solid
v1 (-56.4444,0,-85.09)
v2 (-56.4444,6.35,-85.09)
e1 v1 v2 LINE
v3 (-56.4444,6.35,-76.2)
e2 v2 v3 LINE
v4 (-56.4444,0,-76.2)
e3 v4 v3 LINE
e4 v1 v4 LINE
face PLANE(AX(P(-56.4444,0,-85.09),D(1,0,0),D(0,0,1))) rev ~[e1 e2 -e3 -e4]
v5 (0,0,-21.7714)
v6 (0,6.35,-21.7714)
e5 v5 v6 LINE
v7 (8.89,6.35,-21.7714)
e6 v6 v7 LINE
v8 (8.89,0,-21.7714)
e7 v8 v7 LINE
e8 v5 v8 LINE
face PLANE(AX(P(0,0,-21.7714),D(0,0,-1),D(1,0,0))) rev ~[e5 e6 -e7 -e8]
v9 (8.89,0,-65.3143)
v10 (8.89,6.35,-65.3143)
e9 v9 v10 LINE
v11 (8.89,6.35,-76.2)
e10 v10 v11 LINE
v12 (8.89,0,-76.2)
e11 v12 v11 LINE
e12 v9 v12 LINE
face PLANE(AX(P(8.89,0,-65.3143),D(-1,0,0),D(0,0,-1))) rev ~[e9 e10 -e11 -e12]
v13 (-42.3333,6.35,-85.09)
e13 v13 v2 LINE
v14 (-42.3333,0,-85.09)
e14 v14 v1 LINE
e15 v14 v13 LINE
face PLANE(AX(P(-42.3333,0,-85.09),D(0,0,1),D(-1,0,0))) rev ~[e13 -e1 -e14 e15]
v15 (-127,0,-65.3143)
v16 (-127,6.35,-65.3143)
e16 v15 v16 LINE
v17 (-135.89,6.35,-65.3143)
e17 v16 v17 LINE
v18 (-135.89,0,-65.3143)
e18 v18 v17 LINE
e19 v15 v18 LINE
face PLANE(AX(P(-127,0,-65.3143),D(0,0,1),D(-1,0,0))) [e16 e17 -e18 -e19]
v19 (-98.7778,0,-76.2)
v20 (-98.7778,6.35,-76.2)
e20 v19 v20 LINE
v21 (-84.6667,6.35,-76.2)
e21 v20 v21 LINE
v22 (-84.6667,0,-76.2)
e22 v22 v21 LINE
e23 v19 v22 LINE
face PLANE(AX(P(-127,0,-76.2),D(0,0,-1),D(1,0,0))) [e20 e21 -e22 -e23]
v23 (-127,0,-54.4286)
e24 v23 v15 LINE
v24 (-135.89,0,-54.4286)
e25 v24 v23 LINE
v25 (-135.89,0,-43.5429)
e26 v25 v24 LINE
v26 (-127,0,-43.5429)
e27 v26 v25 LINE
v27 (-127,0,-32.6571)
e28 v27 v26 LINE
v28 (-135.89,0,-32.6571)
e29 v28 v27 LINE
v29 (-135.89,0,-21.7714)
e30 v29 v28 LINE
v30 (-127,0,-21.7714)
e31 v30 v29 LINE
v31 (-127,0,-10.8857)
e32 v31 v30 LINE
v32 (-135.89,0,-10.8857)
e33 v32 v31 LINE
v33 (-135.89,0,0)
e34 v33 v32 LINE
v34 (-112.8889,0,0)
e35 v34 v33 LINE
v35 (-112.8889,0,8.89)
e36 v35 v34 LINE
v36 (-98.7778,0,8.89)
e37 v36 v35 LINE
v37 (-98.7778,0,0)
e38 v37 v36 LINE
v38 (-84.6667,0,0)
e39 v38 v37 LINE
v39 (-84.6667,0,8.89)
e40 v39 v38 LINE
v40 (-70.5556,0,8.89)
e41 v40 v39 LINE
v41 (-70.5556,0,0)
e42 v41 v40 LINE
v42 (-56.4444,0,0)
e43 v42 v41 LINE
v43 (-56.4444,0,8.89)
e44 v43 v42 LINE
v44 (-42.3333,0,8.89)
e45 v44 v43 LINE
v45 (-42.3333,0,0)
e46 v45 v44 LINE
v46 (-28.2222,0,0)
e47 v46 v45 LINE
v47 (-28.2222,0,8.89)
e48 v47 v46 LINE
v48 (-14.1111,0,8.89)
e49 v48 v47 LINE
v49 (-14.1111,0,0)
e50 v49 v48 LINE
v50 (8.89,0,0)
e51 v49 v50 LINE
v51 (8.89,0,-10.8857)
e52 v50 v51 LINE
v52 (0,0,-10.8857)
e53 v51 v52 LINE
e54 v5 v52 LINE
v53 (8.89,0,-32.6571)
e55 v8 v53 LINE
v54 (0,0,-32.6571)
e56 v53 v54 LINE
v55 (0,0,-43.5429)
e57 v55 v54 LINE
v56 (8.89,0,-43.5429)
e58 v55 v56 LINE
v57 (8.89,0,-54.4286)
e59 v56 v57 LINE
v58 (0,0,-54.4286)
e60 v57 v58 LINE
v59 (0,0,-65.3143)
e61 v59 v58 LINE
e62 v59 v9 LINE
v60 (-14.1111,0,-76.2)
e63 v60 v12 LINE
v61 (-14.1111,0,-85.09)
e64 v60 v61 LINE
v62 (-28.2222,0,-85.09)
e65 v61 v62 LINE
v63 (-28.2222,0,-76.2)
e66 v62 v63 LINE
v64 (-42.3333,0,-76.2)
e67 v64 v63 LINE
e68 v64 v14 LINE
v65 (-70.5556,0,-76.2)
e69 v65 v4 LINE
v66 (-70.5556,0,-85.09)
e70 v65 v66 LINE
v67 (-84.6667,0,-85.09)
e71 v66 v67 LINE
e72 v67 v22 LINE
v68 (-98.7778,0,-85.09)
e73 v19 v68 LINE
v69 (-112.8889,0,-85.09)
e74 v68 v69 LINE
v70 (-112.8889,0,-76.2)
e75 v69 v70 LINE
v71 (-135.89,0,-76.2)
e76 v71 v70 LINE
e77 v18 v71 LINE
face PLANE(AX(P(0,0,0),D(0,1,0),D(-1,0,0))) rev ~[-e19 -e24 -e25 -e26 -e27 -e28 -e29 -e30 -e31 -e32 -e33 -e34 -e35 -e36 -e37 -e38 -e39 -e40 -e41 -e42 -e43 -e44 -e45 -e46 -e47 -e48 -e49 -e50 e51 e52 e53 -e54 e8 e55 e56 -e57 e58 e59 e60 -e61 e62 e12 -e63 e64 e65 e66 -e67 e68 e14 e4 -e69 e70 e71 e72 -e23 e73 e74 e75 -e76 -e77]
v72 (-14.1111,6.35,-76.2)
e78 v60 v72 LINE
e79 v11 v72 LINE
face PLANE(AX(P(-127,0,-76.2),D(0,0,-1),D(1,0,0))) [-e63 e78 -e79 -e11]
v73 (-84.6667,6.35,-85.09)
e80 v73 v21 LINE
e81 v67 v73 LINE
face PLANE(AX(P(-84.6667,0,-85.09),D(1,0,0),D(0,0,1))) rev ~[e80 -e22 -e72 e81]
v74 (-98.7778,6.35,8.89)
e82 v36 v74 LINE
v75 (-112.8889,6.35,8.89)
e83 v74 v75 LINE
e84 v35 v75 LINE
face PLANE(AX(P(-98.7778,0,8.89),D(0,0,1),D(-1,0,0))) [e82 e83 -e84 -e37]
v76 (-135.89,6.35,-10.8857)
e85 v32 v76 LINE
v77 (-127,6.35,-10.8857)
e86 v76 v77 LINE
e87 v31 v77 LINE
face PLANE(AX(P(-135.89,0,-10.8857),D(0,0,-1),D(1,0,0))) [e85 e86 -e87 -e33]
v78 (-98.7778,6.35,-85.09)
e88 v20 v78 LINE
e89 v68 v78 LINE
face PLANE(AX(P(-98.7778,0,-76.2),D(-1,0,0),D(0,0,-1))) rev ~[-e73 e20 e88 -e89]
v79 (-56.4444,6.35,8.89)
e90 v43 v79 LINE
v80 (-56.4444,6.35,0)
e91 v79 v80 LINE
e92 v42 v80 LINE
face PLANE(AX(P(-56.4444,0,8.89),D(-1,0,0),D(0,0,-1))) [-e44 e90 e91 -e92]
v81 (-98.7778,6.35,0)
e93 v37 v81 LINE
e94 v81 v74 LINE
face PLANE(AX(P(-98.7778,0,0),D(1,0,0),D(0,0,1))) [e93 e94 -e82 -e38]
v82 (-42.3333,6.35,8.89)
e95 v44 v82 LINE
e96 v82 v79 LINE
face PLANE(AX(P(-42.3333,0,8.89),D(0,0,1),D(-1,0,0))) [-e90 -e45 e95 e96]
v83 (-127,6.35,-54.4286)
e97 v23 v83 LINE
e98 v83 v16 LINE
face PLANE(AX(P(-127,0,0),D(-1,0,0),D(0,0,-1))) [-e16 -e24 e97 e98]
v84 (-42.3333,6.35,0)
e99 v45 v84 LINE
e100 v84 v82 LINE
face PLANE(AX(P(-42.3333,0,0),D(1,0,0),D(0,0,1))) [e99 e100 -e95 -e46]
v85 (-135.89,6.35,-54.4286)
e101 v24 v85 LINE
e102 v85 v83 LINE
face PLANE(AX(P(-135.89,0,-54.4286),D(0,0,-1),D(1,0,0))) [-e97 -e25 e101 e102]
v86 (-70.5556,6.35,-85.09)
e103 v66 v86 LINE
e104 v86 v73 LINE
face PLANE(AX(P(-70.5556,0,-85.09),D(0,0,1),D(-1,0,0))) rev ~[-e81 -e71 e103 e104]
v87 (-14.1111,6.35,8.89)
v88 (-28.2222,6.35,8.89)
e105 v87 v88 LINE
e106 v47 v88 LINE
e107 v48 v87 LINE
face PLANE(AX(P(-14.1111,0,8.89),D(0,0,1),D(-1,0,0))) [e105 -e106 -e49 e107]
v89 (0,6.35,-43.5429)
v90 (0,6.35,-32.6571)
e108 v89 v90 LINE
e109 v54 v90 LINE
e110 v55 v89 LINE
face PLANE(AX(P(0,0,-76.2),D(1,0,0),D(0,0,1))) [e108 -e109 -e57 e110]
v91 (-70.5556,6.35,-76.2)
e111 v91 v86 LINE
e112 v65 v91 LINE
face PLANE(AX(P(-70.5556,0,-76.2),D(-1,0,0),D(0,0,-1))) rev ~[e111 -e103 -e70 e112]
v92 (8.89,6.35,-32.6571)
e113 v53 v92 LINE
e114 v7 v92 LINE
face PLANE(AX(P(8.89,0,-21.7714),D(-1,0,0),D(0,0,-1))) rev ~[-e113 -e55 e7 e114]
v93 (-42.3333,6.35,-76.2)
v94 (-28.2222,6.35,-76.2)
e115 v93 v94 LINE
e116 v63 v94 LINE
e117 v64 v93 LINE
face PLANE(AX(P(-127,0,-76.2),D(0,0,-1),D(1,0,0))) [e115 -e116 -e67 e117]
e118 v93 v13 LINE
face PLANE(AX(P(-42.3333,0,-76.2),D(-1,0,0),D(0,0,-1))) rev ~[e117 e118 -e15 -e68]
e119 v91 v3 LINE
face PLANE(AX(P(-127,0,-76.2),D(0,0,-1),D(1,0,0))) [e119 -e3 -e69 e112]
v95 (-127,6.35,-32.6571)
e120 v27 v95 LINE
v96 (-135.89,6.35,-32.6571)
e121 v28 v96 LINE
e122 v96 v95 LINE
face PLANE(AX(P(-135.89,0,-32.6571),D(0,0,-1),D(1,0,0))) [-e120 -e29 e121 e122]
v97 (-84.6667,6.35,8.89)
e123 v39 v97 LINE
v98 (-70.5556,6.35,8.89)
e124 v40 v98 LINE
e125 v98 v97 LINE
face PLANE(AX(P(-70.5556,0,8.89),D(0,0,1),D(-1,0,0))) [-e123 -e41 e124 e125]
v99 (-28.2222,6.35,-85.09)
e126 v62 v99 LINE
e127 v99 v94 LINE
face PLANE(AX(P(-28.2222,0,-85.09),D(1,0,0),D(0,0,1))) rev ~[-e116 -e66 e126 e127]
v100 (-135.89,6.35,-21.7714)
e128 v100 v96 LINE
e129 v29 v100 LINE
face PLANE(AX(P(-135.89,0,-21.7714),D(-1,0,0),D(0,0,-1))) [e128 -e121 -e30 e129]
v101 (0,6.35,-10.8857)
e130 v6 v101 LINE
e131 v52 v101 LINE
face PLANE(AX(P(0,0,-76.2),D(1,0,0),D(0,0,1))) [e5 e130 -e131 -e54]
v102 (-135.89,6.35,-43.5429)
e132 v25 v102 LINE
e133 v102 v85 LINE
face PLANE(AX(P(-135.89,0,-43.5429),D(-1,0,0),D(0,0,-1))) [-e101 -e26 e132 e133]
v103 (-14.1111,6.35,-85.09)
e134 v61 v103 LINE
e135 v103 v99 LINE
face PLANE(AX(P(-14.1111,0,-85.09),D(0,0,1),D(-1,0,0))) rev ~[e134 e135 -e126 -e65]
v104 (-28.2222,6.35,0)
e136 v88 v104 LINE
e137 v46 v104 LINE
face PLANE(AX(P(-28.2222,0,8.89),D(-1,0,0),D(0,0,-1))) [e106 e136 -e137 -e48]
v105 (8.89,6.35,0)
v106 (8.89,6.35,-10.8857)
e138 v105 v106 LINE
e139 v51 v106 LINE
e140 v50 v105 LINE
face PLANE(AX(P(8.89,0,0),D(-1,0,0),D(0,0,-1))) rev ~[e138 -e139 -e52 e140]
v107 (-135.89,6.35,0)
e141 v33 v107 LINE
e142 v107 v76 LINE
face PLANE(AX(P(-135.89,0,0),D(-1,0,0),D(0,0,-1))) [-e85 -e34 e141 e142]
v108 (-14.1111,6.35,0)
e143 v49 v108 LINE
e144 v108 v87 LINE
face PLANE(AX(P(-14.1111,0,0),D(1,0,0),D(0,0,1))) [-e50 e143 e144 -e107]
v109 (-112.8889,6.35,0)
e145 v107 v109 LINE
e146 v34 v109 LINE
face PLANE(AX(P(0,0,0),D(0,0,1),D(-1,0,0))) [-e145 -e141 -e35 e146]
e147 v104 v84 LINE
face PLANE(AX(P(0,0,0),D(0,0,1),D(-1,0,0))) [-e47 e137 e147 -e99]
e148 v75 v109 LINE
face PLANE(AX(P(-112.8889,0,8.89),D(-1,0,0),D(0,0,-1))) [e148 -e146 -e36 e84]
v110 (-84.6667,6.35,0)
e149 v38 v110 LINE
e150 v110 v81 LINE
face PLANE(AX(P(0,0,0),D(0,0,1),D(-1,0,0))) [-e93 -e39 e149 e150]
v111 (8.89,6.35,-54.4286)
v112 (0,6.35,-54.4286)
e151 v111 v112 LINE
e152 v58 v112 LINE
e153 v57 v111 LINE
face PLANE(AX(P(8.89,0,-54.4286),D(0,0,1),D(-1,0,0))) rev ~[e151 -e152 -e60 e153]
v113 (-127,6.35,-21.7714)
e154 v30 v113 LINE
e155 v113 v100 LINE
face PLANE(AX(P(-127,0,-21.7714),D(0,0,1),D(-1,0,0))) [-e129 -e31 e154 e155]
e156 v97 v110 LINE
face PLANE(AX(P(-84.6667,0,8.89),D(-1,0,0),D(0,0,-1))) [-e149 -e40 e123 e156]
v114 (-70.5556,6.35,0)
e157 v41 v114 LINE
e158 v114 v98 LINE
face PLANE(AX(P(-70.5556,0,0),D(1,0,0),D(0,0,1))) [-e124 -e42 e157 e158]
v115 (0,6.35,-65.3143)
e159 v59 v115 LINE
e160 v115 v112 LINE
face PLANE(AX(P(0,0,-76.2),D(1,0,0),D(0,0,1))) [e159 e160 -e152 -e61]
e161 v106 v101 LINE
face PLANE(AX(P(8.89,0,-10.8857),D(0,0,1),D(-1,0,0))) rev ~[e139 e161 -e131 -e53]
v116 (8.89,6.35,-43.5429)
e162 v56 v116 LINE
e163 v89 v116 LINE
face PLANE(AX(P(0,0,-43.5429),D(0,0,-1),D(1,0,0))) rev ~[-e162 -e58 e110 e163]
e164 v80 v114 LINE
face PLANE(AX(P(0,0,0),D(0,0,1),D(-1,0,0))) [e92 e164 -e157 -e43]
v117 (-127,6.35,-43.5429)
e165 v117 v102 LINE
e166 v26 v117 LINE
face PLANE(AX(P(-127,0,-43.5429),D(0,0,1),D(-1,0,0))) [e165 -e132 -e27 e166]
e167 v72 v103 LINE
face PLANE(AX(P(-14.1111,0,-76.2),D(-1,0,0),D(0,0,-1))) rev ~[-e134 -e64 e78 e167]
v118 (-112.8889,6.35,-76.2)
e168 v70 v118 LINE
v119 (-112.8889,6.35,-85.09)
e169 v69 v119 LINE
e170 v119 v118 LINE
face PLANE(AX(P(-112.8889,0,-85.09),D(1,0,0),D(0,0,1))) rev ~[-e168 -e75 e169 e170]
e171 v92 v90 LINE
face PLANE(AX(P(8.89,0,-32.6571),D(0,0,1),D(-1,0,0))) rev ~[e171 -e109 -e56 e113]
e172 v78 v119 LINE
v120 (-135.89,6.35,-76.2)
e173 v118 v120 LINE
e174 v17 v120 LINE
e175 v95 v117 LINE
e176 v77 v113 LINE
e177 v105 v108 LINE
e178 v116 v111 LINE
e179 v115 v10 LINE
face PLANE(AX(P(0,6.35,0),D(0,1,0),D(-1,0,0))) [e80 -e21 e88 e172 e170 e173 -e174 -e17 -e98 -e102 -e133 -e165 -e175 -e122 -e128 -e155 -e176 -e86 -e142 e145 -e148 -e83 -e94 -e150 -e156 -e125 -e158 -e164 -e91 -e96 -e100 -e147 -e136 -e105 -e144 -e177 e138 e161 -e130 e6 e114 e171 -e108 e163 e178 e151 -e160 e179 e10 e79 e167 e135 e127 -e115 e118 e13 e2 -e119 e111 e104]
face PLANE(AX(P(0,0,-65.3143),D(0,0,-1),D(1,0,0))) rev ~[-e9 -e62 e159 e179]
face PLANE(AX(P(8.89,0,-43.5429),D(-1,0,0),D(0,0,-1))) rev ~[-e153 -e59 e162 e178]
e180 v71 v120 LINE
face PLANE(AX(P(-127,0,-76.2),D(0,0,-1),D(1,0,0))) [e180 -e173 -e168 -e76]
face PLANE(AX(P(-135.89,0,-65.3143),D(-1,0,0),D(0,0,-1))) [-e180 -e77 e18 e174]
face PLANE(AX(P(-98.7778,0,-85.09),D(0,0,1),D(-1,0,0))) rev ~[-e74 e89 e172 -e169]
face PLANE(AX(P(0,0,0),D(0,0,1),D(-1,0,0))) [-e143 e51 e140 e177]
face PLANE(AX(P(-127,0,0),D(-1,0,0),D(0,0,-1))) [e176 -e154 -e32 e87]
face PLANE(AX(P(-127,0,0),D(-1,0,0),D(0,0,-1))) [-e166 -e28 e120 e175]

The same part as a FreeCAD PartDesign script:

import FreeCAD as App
import Part
import Sketcher
Q = App.Units.Quantity

doc = App.newDocument("Part")
body = doc.addObject("PartDesign::Body", "Body")
body.AllowCompound = True

# Sketch on XZ plane
sketch1 = body.newObject("Sketcher::SketchObject", "Sketch")
sketch1.AttachmentSupport = (doc.getObject("XZ_Plane"), [""])
sketch1.MapMode = "FlatFace"
sketch1.addGeometry(Part.LineSegment(App.Vector(0, -10.8857, 0), App.Vector(0, 0, 0)), False)
sketch1.addGeometry(Part.LineSegment(App.Vector(0, 0, 0), App.Vector(8.89, 0, 0)), False)
sketch1.addGeometry(Part.LineSegment(App.Vector(8.89, 0, 0), App.Vector(8.89, -10.8857, 0)), False)
sketch1.addGeometry(Part.LineSegment(App.Vector(8.89, -10.8857, 0), App.Vector(0, -10.8857, 0)), False)
sketch1.addGeometry(Part.LineSegment(App.Vector(-14.1111, 8.89, 0), App.Vector(-14.1111, 0, 0)), False)
sketch1.addGeometry(Part.LineSegment(App.Vector(-14.1111, 0, 0), App.Vector(-28.2222, 0, 0)), False)
sketch1.addGeometry(Part.LineSegment(App.Vector(-28.2222, 0, 0), App.Vector(-28.2222, 8.89, 0)), False)
sketch1.addGeometry(Part.LineSegment(App.Vector(-28.2222, 8.89, 0), App.Vector(-14.1111, 8.89, 0)), False)
sketch1.addGeometry(Part.LineSegment(App.Vector(0, -32.6571, 0), App.Vector(0, -21.7714, 0)), False)
sketch1.addGeometry(Part.LineSegment(App.Vector(0, -21.7714, 0), App.Vector(8.89, -21.7714, 0)), False)
sketch1.addGeometry(Part.LineSegment(App.Vector(8.89, -21.7714, 0), App.Vector(8.89, -32.6571, 0)), False)
sketch1.addGeometry(Part.LineSegment(App.Vector(8.89, -32.6571, 0), App.Vector(0, -32.6571, 0)), False)
sketch1.addGeometry(Part.LineSegment(App.Vector(-42.3333, 8.89, 0), App.Vector(-42.3333, 0, 0)), False)
sketch1.addGeometry(Part.LineSegment(App.Vector(-42.3333, 0, 0), App.Vector(-56.4444, 0, 0)), False)
sketch1.addGeometry(Part.LineSegment(App.Vector(-56.4444, 0, 0), App.Vector(-56.4444, 8.89, 0)), False)
sketch1.addGeometry(Part.LineSegment(App.Vector(-56.4444, 8.89, 0), App.Vector(-42.3333, 8.89, 0)), False)
sketch1.addGeometry(Part.LineSegment(App.Vector(0, -54.4286, 0), App.Vector(0, -43.5429, 0)), False)
sketch1.addGeometry(Part.LineSegment(App.Vector(0, -43.5429, 0), App.Vector(8.89, -43.5429, 0)), False)
sketch1.addGeometry(Part.LineSegment(App.Vector(8.89, -43.5429, 0), App.Vector(8.89, -54.4286, 0)), False)
sketch1.addGeometry(Part.LineSegment(App.Vector(8.89, -54.4286, 0), App.Vector(0, -54.4286, 0)), False)
sketch1.addGeometry(Part.LineSegment(App.Vector(-70.5556, 8.89, 0), App.Vector(-70.5556, 0, 0)), False)
sketch1.addGeometry(Part.LineSegment(App.Vector(-70.5556, 0, 0), App.Vector(-84.6667, 0, 0)), False)
sketch1.addGeometry(Part.LineSegment(App.Vector(-84.6667, 0, 0), App.Vector(-84.6667, 8.89, 0)), False)
sketch1.addGeometry(Part.LineSegment(App.Vector(-84.6667, 8.89, 0), App.Vector(-70.5556, 8.89, 0)), False)
sketch1.addGeometry(Part.LineSegment(App.Vector(0, -76.2, 0), App.Vector(0, -65.3143, 0)), False)
sketch1.addGeometry(Part.LineSegment(App.Vector(0, -65.3143, 0), App.Vector(8.89, -65.3143, 0)), False)
sketch1.addGeometry(Part.LineSegment(App.Vector(8.89, -65.3143, 0), App.Vector(8.89, -76.2, 0)), False)
sketch1.addGeometry(Part.LineSegment(App.Vector(8.89, -76.2, 0), App.Vector(0, -76.2, 0)), False)
sketch1.addGeometry(Part.LineSegment(App.Vector(-98.7778, 8.89, 0), App.Vector(-98.7778, 0, 0)), False)
sketch1.addGeometry(Part.LineSegment(App.Vector(-98.7778, 0, 0), App.Vector(-112.8889, 0, 0)), False)
sketch1.addGeometry(Part.LineSegment(App.Vector(-112.8889, 0, 0), App.Vector(-112.8889, 8.89, 0)), False)
sketch1.addGeometry(Part.LineSegment(App.Vector(-112.8889, 8.89, 0), App.Vector(-98.7778, 8.89, 0)), False)
sketch1.addGeometry(Part.LineSegment(App.Vector(-28.2222, -76.2, 0), App.Vector(-14.1111, -76.2, 0)), False)
sketch1.addGeometry(Part.LineSegment(App.Vector(-14.1111, -76.2, 0), App.Vector(-14.1111, -85.09, 0)), False)
sketch1.addGeometry(Part.LineSegment(App.Vector(-14.1111, -85.09, 0), App.Vector(-28.2222, -85.09, 0)), False)
sketch1.addGeometry(Part.LineSegment(App.Vector(-28.2222, -85.09, 0), App.Vector(-28.2222, -76.2, 0)), False)
sketch1.addGeometry(Part.LineSegment(App.Vector(-135.89, 0, 0), App.Vector(-127, 0, 0)), False)
sketch1.addGeometry(Part.LineSegment(App.Vector(-127, 0, 0), App.Vector(-127, -10.8857, 0)), False)
sketch1.addGeometry(Part.LineSegment(App.Vector(-127, -10.8857, 0), App.Vector(-135.89, -10.8857, 0)), False)
sketch1.addGeometry(Part.LineSegment(App.Vector(-135.89, -10.8857, 0), App.Vector(-135.89, 0, 0)), False)
sketch1.addGeometry(Part.LineSegment(App.Vector(-56.4444, -76.2, 0), App.Vector(-42.3333, -76.2, 0)), False)
sketch1.addGeometry(Part.LineSegment(App.Vector(-42.3333, -76.2, 0), App.Vector(-42.3333, -85.09, 0)), False)
sketch1.addGeometry(Part.LineSegment(App.Vector(-42.3333, -85.09, 0), App.Vector(-56.4444, -85.09, 0)), False)
sketch1.addGeometry(Part.LineSegment(App.Vector(-56.4444, -85.09, 0), App.Vector(-56.4444, -76.2, 0)), False)
sketch1.addGeometry(Part.LineSegment(App.Vector(-135.89, -21.7714, 0), App.Vector(-127, -21.7714, 0)), False)
sketch1.addGeometry(Part.LineSegment(App.Vector(-127, -21.7714, 0), App.Vector(-127, -32.6571, 0)), False)
sketch1.addGeometry(Part.LineSegment(App.Vector(-127, -32.6571, 0), App.Vector(-135.89, -32.6571, 0)), False)
sketch1.addGeometry(Part.LineSegment(App.Vector(-135.89, -32.6571, 0), App.Vector(-135.89, -21.7714, 0)), False)
sketch1.addGeometry(Part.LineSegment(App.Vector(-84.6667, -76.2, 0), App.Vector(-70.5556, -76.2, 0)), False)
sketch1.addGeometry(Part.LineSegment(App.Vector(-70.5556, -76.2, 0), App.Vector(-70.5556, -85.09, 0)), False)
sketch1.addGeometry(Part.LineSegment(App.Vector(-70.5556, -85.09, 0), App.Vector(-84.6667, -85.09, 0)), False)
sketch1.addGeometry(Part.LineSegment(App.Vector(-84.6667, -85.09, 0), App.Vector(-84.6667, -76.2, 0)), False)
sketch1.addGeometry(Part.LineSegment(App.Vector(-135.89, -43.5429, 0), App.Vector(-127, -43.5429, 0)), False)
sketch1.addGeometry(Part.LineSegment(App.Vector(-127, -43.5429, 0), App.Vector(-127, -54.4286, 0)), False)
sketch1.addGeometry(Part.LineSegment(App.Vector(-127, -54.4286, 0), App.Vector(-135.89, -54.4286, 0)), False)
sketch1.addGeometry(Part.LineSegment(App.Vector(-135.89, -54.4286, 0), App.Vector(-135.89, -43.5429, 0)), False)
sketch1.addGeometry(Part.LineSegment(App.Vector(-112.8889, -76.2, 0), App.Vector(-98.7778, -76.2, 0)), False)
sketch1.addGeometry(Part.LineSegment(App.Vector(-98.7778, -76.2, 0), App.Vector(-98.7778, -85.09, 0)), False)
sketch1.addGeometry(Part.LineSegment(App.Vector(-98.7778, -85.09, 0), App.Vector(-112.8889, -85.09, 0)), False)
sketch1.addGeometry(Part.LineSegment(App.Vector(-112.8889, -85.09, 0), App.Vector(-112.8889, -76.2, 0)), False)
sketch1.addGeometry(Part.LineSegment(App.Vector(-135.89, -65.3143, 0), App.Vector(-127, -65.3143, 0)), False)
sketch1.addGeometry(Part.LineSegment(App.Vector(-127, -65.3143, 0), App.Vector(-127, -76.2, 0)), False)
sketch1.addGeometry(Part.LineSegment(App.Vector(-127, -76.2, 0), App.Vector(-135.89, -76.2, 0)), False)
sketch1.addGeometry(Part.LineSegment(App.Vector(-135.89, -76.2, 0), App.Vector(-135.89, -65.3143, 0)), False)
sketch1.addConstraint(Sketcher.Constraint("Coincident", 0, 2, 1, 1))
sketch1.addConstraint(Sketcher.Constraint("Coincident", 1, 2, 2, 1))
sketch1.addConstraint(Sketcher.Constraint("Coincident", 2, 2, 3, 1))
sketch1.addConstraint(Sketcher.Constraint("Coincident", 3, 2, 0, 1))
sketch1.addConstraint(Sketcher.Constraint("Coincident", 4, 2, 5, 1))
sketch1.addConstraint(Sketcher.Constraint("Coincident", 5, 2, 6, 1))
sketch1.addConstraint(Sketcher.Constraint("Coincident", 6, 2, 7, 1))
sketch1.addConstraint(Sketcher.Constraint("Coincident", 7, 2, 4, 1))
sketch1.addConstraint(Sketcher.Constraint("Coincident", 8, 2, 9, 1))
sketch1.addConstraint(Sketcher.Constraint("Coincident", 9, 2, 10, 1))
sketch1.addConstraint(Sketcher.Constraint("Coincident", 10, 2, 11, 1))
sketch1.addConstraint(Sketcher.Constraint("Coincident", 11, 2, 8, 1))
sketch1.addConstraint(Sketcher.Constraint("Coincident", 12, 2, 13, 1))
sketch1.addConstraint(Sketcher.Constraint("Coincident", 13, 2, 14, 1))
sketch1.addConstraint(Sketcher.Constraint("Coincident", 14, 2, 15, 1))
sketch1.addConstraint(Sketcher.Constraint("Coincident", 15, 2, 12, 1))
sketch1.addConstraint(Sketcher.Constraint("Coincident", 16, 2, 17, 1))
sketch1.addConstraint(Sketcher.Constraint("Coincident", 17, 2, 18, 1))
sketch1.addConstraint(Sketcher.Constraint("Coincident", 18, 2, 19, 1))
sketch1.addConstraint(Sketcher.Constraint("Coincident", 19, 2, 16, 1))
sketch1.addConstraint(Sketcher.Constraint("Coincident", 20, 2, 21, 1))
sketch1.addConstraint(Sketcher.Constraint("Coincident", 21, 2, 22, 1))
sketch1.addConstraint(Sketcher.Constraint("Coincident", 22, 2, 23, 1))
sketch1.addConstraint(Sketcher.Constraint("Coincident", 23, 2, 20, 1))
sketch1.addConstraint(Sketcher.Constraint("Coincident", 24, 2, 25, 1))
sketch1.addConstraint(Sketcher.Constraint("Coincident", 25, 2, 26, 1))
sketch1.addConstraint(Sketcher.Constraint("Coincident", 26, 2, 27, 1))
sketch1.addConstraint(Sketcher.Constraint("Coincident", 27, 2, 24, 1))
sketch1.addConstraint(Sketcher.Constraint("Coincident", 28, 2, 29, 1))
sketch1.addConstraint(Sketcher.Constraint("Coincident", 29, 2, 30, 1))
sketch1.addConstraint(Sketcher.Constraint("Coincident", 30, 2, 31, 1))
sketch1.addConstraint(Sketcher.Constraint("Coincident", 31, 2, 28, 1))
sketch1.addConstraint(Sketcher.Constraint("Coincident", 32, 2, 33, 1))
sketch1.addConstraint(Sketcher.Constraint("Coincident", 33, 2, 34, 1))
sketch1.addConstraint(Sketcher.Constraint("Coincident", 34, 2, 35, 1))
sketch1.addConstraint(Sketcher.Constraint("Coincident", 35, 2, 32, 1))
sketch1.addConstraint(Sketcher.Constraint("Coincident", 36, 2, 37, 1))
sketch1.addConstraint(Sketcher.Constraint("Coincident", 37, 2, 38, 1))
sketch1.addConstraint(Sketcher.Constraint("Coincident", 38, 2, 39, 1))
sketch1.addConstraint(Sketcher.Constraint("Coincident", 39, 2, 36, 1))
sketch1.addConstraint(Sketcher.Constraint("Coincident", 40, 2, 41, 1))
sketch1.addConstraint(Sketcher.Constraint("Coincident", 41, 2, 42, 1))
sketch1.addConstraint(Sketcher.Constraint("Coincident", 42, 2, 43, 1))
sketch1.addConstraint(Sketcher.Constraint("Coincident", 43, 2, 40, 1))
sketch1.addConstraint(Sketcher.Constraint("Coincident", 44, 2, 45, 1))
sketch1.addConstraint(Sketcher.Constraint("Coincident", 45, 2, 46, 1))
sketch1.addConstraint(Sketcher.Constraint("Coincident", 46, 2, 47, 1))
sketch1.addConstraint(Sketcher.Constraint("Coincident", 47, 2, 44, 1))
sketch1.addConstraint(Sketcher.Constraint("Coincident", 48, 2, 49, 1))
sketch1.addConstraint(Sketcher.Constraint("Coincident", 49, 2, 50, 1))
sketch1.addConstraint(Sketcher.Constraint("Coincident", 50, 2, 51, 1))
sketch1.addConstraint(Sketcher.Constraint("Coincident", 51, 2, 48, 1))
sketch1.addConstraint(Sketcher.Constraint("Coincident", 52, 2, 53, 1))
sketch1.addConstraint(Sketcher.Constraint("Coincident", 53, 2, 54, 1))
sketch1.addConstraint(Sketcher.Constraint("Coincident", 54, 2, 55, 1))
sketch1.addConstraint(Sketcher.Constraint("Coincident", 55, 2, 52, 1))
sketch1.addConstraint(Sketcher.Constraint("Coincident", 56, 2, 57, 1))
sketch1.addConstraint(Sketcher.Constraint("Coincident", 57, 2, 58, 1))
sketch1.addConstraint(Sketcher.Constraint("Coincident", 58, 2, 59, 1))
sketch1.addConstraint(Sketcher.Constraint("Coincident", 59, 2, 56, 1))
sketch1.addConstraint(Sketcher.Constraint("Coincident", 60, 2, 61, 1))
sketch1.addConstraint(Sketcher.Constraint("Coincident", 61, 2, 62, 1))
sketch1.addConstraint(Sketcher.Constraint("Coincident", 62, 2, 63, 1))
sketch1.addConstraint(Sketcher.Constraint("Coincident", 63, 2, 60, 1))
sketch1.addConstraint(Sketcher.Constraint("Vertical", 0))
sketch1.addConstraint(Sketcher.Constraint("Horizontal", 1))
sketch1.addConstraint(Sketcher.Constraint("Vertical", 2))
sketch1.addConstraint(Sketcher.Constraint("Horizontal", 3))
sketch1.addConstraint(Sketcher.Constraint("Vertical", 4))
sketch1.addConstraint(Sketcher.Constraint("Horizontal", 5))
sketch1.addConstraint(Sketcher.Constraint("Vertical", 6))
sketch1.addConstraint(Sketcher.Constraint("Horizontal", 7))
sketch1.addConstraint(Sketcher.Constraint("Vertical", 8))
sketch1.addConstraint(Sketcher.Constraint("Horizontal", 9))
sketch1.addConstraint(Sketcher.Constraint("Vertical", 10))
sketch1.addConstraint(Sketcher.Constraint("Horizontal", 11))
sketch1.addConstraint(Sketcher.Constraint("Vertical", 12))
sketch1.addConstraint(Sketcher.Constraint("Horizontal", 13))
sketch1.addConstraint(Sketcher.Constraint("Vertical", 14))
sketch1.addConstraint(Sketcher.Constraint("Horizontal", 15))
sketch1.addConstraint(Sketcher.Constraint("Vertical", 16))
sketch1.addConstraint(Sketcher.Constraint("Horizontal", 17))
sketch1.addConstraint(Sketcher.Constraint("Vertical", 18))
sketch1.addConstraint(Sketcher.Constraint("Horizontal", 19))
sketch1.addConstraint(Sketcher.Constraint("Vertical", 20))
sketch1.addConstraint(Sketcher.Constraint("Horizontal", 21))
sketch1.addConstraint(Sketcher.Constraint("Vertical", 22))
sketch1.addConstraint(Sketcher.Constraint("Horizontal", 23))
sketch1.addConstraint(Sketcher.Constraint("Vertical", 24))
sketch1.addConstraint(Sketcher.Constraint("Horizontal", 25))
sketch1.addConstraint(Sketcher.Constraint("Vertical", 26))
sketch1.addConstraint(Sketcher.Constraint("Horizontal", 27))
sketch1.addConstraint(Sketcher.Constraint("Vertical", 28))
sketch1.addConstraint(Sketcher.Constraint("Horizontal", 29))
sketch1.addConstraint(Sketcher.Constraint("Vertical", 30))
sketch1.addConstraint(Sketcher.Constraint("Horizontal", 31))
sketch1.addConstraint(Sketcher.Constraint("Horizontal", 32))
sketch1.addConstraint(Sketcher.Constraint("Vertical", 33))
sketch1.addConstraint(Sketcher.Constraint("Horizontal", 34))
sketch1.addConstraint(Sketcher.Constraint("Vertical", 35))
sketch1.addConstraint(Sketcher.Constraint("Horizontal", 36))
sketch1.addConstraint(Sketcher.Constraint("Vertical", 37))
sketch1.addConstraint(Sketcher.Constraint("Horizontal", 38))
sketch1.addConstraint(Sketcher.Constraint("Vertical", 39))
sketch1.addConstraint(Sketcher.Constraint("Horizontal", 40))
sketch1.addConstraint(Sketcher.Constraint("Vertical", 41))
sketch1.addConstraint(Sketcher.Constraint("Horizontal", 42))
sketch1.addConstraint(Sketcher.Constraint("Vertical", 43))
sketch1.addConstraint(Sketcher.Constraint("Horizontal", 44))
sketch1.addConstraint(Sketcher.Constraint("Vertical", 45))
sketch1.addConstraint(Sketcher.Constraint("Horizontal", 46))
sketch1.addConstraint(Sketcher.Constraint("Vertical", 47))
sketch1.addConstraint(Sketcher.Constraint("Horizontal", 48))
sketch1.addConstraint(Sketcher.Constraint("Vertical", 49))
sketch1.addConstraint(Sketcher.Constraint("Horizontal", 50))
sketch1.addConstraint(Sketcher.Constraint("Vertical", 51))
sketch1.addConstraint(Sketcher.Constraint("Horizontal", 52))
sketch1.addConstraint(Sketcher.Constraint("Vertical", 53))
sketch1.addConstraint(Sketcher.Constraint("Horizontal", 54))
sketch1.addConstraint(Sketcher.Constraint("Vertical", 55))
sketch1.addConstraint(Sketcher.Constraint("Horizontal", 56))
sketch1.addConstraint(Sketcher.Constraint("Vertical", 57))
sketch1.addConstraint(Sketcher.Constraint("Horizontal", 58))
sketch1.addConstraint(Sketcher.Constraint("Vertical", 59))
sketch1.addConstraint(Sketcher.Constraint("Horizontal", 60))
sketch1.addConstraint(Sketcher.Constraint("Vertical", 61))
sketch1.addConstraint(Sketcher.Constraint("Horizontal", 62))
sketch1.addConstraint(Sketcher.Constraint("Vertical", 63))
sketch1.addConstraint(Sketcher.Constraint("Coincident", 0, 2, -1, 1))
sketch1.addConstraint(Sketcher.Constraint("PointOnObject", 4, 2, -1))
sketch1.addConstraint(Sketcher.Constraint("PointOnObject", 8, 2, -2))
sketch1.addConstraint(Sketcher.Constraint("PointOnObject", 12, 2, -1))
sketch1.addConstraint(Sketcher.Constraint("PointOnObject", 16, 2, -2))
sketch1.addConstraint(Sketcher.Constraint("PointOnObject", 20, 2, -1))
sketch1.addConstraint(Sketcher.Constraint("PointOnObject", 24, 2, -2))
sketch1.addConstraint(Sketcher.Constraint("PointOnObject", 28, 2, -1))
sketch1.addConstraint(Sketcher.Constraint("PointOnObject", 36, 2, -1))
sketch1.addConstraint(Sketcher.Constraint("Horizontal", 7, 2, 14, 2))
sketch1.addConstraint(Sketcher.Constraint("Horizontal", 15, 2, 22, 2))
sketch1.addConstraint(Sketcher.Constraint("Horizontal", 23, 2, 30, 2))
sketch1.addConstraint(Sketcher.Constraint("Horizontal", 27, 2, 32, 2))
sketch1.addConstraint(Sketcher.Constraint("Horizontal", 3, 2, 37, 2))
sketch1.addConstraint(Sketcher.Constraint("Horizontal", 35, 2, 40, 2))
sketch1.addConstraint(Sketcher.Constraint("Horizontal", 34, 2, 41, 2))
sketch1.addConstraint(Sketcher.Constraint("Horizontal", 9, 2, 44, 2))
sketch1.addConstraint(Sketcher.Constraint("Horizontal", 11, 2, 45, 2))
sketch1.addConstraint(Sketcher.Constraint("Horizontal", 43, 2, 48, 2))
sketch1.addConstraint(Sketcher.Constraint("Horizontal", 42, 2, 49, 2))
sketch1.addConstraint(Sketcher.Constraint("Horizontal", 17, 2, 52, 2))
sketch1.addConstraint(Sketcher.Constraint("Horizontal", 19, 2, 53, 2))
sketch1.addConstraint(Sketcher.Constraint("Horizontal", 51, 2, 56, 2))
sketch1.addConstraint(Sketcher.Constraint("Horizontal", 50, 2, 57, 2))
sketch1.addConstraint(Sketcher.Constraint("Horizontal", 25, 2, 60, 2))
sketch1.addConstraint(Sketcher.Constraint("Horizontal", 59, 2, 61, 2))
sketch1.addConstraint(Sketcher.Constraint("Vertical", 2, 2, 9, 2))
sketch1.addConstraint(Sketcher.Constraint("Vertical", 10, 2, 17, 2))
sketch1.addConstraint(Sketcher.Constraint("Vertical", 18, 2, 25, 2))
sketch1.addConstraint(Sketcher.Constraint("Vertical", 7, 2, 32, 2))
sketch1.addConstraint(Sketcher.Constraint("Vertical", 6, 2, 34, 2))
sketch1.addConstraint(Sketcher.Constraint("Vertical", 15, 2, 40, 2))
sketch1.addConstraint(Sketcher.Constraint("Vertical", 14, 2, 42, 2))
sketch1.addConstraint(Sketcher.Constraint("Vertical", 37, 2, 44, 2))
sketch1.addConstraint(Sketcher.Constraint("Vertical", 39, 2, 46, 2))
sketch1.addConstraint(Sketcher.Constraint("Vertical", 23, 2, 48, 2))
sketch1.addConstraint(Sketcher.Constraint("Vertical", 22, 2, 50, 2))
sketch1.addConstraint(Sketcher.Constraint("Vertical", 45, 2, 52, 2))
sketch1.addConstraint(Sketcher.Constraint("Vertical", 47, 2, 54, 2))
sketch1.addConstraint(Sketcher.Constraint("Vertical", 31, 2, 56, 2))
sketch1.addConstraint(Sketcher.Constraint("Vertical", 30, 2, 58, 2))
sketch1.addConstraint(Sketcher.Constraint("Vertical", 53, 2, 60, 2))
sketch1.addConstraint(Sketcher.Constraint("Vertical", 55, 2, 62, 2))
sketch1.addConstraint(Sketcher.Constraint("Equal", 7, 13))
sketch1.addConstraint(Sketcher.Constraint("Equal", 15, 21))
sketch1.addConstraint(Sketcher.Constraint("Equal", 23, 29))
sketch1.addConstraint(Sketcher.Constraint("Equal", 27, 36))
sketch1.addConstraint(Sketcher.Constraint("Equal", 62, 4))
sketch1.addConstraint(Sketcher.Constraint("Equal", 2, 8))
sketch1.addConstraint(Sketcher.Constraint("Equal", 10, 16))
sketch1.addConstraint(Sketcher.Constraint("Equal", 18, 24))
sketch1.addConstraint(Sketcher.Constraint("Equal", 30, 33))
sketch1.addConstraint(Sketcher.Constraint("DistanceY", 26, 2, -1, 1, Q("3 in")))
sketch1.addConstraint(Sketcher.Constraint("DistanceX", 36, 2, -1, 1, Q("5 in")))
sketch1.addConstraint(Sketcher.Constraint("DistanceX", 1, 1, 1, 2, Q("0.35 in")))
sketch1.addConstraint(Sketcher.Constraint("DistanceX", 5, 2, 5, 1, Q("14.111 mm")))
sketch1.addConstraint(Sketcher.Constraint("DistanceY", 0, 1, 0, 2, Q("10.8857 mm")))
sketch1.addConstraint(Sketcher.Constraint("DistanceX", 4, 2, -1, 1, Q("14.111 mm")))
sketch1.addConstraint(Sketcher.Constraint("DistanceX", 28, 2, -1, 1, Q("3.8889 in")))
sketch1.addConstraint(Sketcher.Constraint("DistanceY", 8, 2, -1, 1, Q("21.7714 mm")))
sketch1.addConstraint(Sketcher.Constraint("DistanceX", 12, 2, -1, 1, Q("42.3333 mm")))
sketch1.addConstraint(Sketcher.Constraint("DistanceY", 16, 2, -1, 1, Q("1.7142913 in")))
sketch1.addConstraint(Sketcher.Constraint("DistanceX", 20, 2, -1, 1, Q("70.5556 mm")))
pad1 = body.newObject("PartDesign::Pad", "Pad")
pad1.Profile = sketch1
pad1.Length = Q("0.25 in")
pad1.Reversed = True

# Sketch on XZ plane
sketch2 = body.newObject("Sketcher::SketchObject", "Sketch001")
sketch2.AttachmentSupport = (doc.getObject("XZ_Plane"), [""])
sketch2.MapMode = "FlatFace"
sketch2.addGeometry(Part.LineSegment(App.Vector(-127, 0, 0), App.Vector(0, 0, 0)), False)
sketch2.addGeometry(Part.LineSegment(App.Vector(0, 0, 0), App.Vector(0, -76.2, 0)), False)
sketch2.addGeometry(Part.LineSegment(App.Vector(0, -76.2, 0), App.Vector(-127, -76.2, 0)), False)
sketch2.addGeometry(Part.LineSegment(App.Vector(-127, -76.2, 0), App.Vector(-127, 0, 0)), False)
sketch2.addConstraint(Sketcher.Constraint("Coincident", 0, 2, 1, 1))
sketch2.addConstraint(Sketcher.Constraint("Coincident", 1, 2, 2, 1))
sketch2.addConstraint(Sketcher.Constraint("Coincident", 2, 2, 3, 1))
sketch2.addConstraint(Sketcher.Constraint("Coincident", 3, 2, 0, 1))
sketch2.addConstraint(Sketcher.Constraint("Horizontal", 0))
sketch2.addConstraint(Sketcher.Constraint("Vertical", 1))
sketch2.addConstraint(Sketcher.Constraint("Horizontal", 2))
sketch2.addConstraint(Sketcher.Constraint("Vertical", 3))
sketch2.addConstraint(Sketcher.Constraint("Coincident", 0, 2, -1, 1))
sketch2.addConstraint(Sketcher.Constraint("DistanceX", 0, 1, 0, 2, Q("5 in")))
sketch2.addConstraint(Sketcher.Constraint("DistanceY", 1, 2, 1, 1, Q("3 in")))
pad2 = body.newObject("PartDesign::Pad", "Pad001")
pad2.Profile = sketch2
pad2.Length = Q("0.25 in")
pad2.Reversed = True

doc.recompute()
